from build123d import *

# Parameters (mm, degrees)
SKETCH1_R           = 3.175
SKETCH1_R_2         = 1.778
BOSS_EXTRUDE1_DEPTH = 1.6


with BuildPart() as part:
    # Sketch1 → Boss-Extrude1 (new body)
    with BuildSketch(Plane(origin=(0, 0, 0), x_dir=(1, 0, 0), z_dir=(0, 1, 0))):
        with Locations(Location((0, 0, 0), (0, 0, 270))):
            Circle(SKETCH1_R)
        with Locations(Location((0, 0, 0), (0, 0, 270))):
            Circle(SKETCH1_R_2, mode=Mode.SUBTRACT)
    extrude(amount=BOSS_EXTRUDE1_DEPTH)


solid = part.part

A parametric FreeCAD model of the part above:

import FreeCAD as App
import Part
import Sketcher
from FreeCAD import Vector
Q = App.Units.Quantity

doc = App.newDocument("Part")
body = doc.addObject("PartDesign::Body", "Body")

# Sketch on XZ plane
sketch1 = doc.addObject("Sketcher::SketchObject", "Sketch")
body.addObject(sketch1)
sketch1.AttachmentSupport = (doc.XZ_Plane, [""])
sketch1.MapMode = "FlatFace"
sketch1.addGeometry([
    Part.Circle(Vector(0, 0, 0), Vector(0, 0, 1), 3.175),
    Part.Circle(Vector(0, 0, 0), Vector(0, 0, 1), 1.778),
], False)
sketch1.addConstraint([
    Sketcher.Constraint("Coincident", 0, 3, -1, 1),
    Sketcher.Constraint("Coincident", 1, 3, -1, 1),
    Sketcher.Constraint("Diameter", 0, Q("0.25 in")),
    Sketcher.Constraint("Diameter", 1, Q("0.14 in")),
])
pad1 = doc.addObject("PartDesign::Pad", "Pad")
body.addObject(pad1)
pad1.Profile = sketch1
pad1.Length = 1.6
pad1.Reversed = True

doc.recompute()
